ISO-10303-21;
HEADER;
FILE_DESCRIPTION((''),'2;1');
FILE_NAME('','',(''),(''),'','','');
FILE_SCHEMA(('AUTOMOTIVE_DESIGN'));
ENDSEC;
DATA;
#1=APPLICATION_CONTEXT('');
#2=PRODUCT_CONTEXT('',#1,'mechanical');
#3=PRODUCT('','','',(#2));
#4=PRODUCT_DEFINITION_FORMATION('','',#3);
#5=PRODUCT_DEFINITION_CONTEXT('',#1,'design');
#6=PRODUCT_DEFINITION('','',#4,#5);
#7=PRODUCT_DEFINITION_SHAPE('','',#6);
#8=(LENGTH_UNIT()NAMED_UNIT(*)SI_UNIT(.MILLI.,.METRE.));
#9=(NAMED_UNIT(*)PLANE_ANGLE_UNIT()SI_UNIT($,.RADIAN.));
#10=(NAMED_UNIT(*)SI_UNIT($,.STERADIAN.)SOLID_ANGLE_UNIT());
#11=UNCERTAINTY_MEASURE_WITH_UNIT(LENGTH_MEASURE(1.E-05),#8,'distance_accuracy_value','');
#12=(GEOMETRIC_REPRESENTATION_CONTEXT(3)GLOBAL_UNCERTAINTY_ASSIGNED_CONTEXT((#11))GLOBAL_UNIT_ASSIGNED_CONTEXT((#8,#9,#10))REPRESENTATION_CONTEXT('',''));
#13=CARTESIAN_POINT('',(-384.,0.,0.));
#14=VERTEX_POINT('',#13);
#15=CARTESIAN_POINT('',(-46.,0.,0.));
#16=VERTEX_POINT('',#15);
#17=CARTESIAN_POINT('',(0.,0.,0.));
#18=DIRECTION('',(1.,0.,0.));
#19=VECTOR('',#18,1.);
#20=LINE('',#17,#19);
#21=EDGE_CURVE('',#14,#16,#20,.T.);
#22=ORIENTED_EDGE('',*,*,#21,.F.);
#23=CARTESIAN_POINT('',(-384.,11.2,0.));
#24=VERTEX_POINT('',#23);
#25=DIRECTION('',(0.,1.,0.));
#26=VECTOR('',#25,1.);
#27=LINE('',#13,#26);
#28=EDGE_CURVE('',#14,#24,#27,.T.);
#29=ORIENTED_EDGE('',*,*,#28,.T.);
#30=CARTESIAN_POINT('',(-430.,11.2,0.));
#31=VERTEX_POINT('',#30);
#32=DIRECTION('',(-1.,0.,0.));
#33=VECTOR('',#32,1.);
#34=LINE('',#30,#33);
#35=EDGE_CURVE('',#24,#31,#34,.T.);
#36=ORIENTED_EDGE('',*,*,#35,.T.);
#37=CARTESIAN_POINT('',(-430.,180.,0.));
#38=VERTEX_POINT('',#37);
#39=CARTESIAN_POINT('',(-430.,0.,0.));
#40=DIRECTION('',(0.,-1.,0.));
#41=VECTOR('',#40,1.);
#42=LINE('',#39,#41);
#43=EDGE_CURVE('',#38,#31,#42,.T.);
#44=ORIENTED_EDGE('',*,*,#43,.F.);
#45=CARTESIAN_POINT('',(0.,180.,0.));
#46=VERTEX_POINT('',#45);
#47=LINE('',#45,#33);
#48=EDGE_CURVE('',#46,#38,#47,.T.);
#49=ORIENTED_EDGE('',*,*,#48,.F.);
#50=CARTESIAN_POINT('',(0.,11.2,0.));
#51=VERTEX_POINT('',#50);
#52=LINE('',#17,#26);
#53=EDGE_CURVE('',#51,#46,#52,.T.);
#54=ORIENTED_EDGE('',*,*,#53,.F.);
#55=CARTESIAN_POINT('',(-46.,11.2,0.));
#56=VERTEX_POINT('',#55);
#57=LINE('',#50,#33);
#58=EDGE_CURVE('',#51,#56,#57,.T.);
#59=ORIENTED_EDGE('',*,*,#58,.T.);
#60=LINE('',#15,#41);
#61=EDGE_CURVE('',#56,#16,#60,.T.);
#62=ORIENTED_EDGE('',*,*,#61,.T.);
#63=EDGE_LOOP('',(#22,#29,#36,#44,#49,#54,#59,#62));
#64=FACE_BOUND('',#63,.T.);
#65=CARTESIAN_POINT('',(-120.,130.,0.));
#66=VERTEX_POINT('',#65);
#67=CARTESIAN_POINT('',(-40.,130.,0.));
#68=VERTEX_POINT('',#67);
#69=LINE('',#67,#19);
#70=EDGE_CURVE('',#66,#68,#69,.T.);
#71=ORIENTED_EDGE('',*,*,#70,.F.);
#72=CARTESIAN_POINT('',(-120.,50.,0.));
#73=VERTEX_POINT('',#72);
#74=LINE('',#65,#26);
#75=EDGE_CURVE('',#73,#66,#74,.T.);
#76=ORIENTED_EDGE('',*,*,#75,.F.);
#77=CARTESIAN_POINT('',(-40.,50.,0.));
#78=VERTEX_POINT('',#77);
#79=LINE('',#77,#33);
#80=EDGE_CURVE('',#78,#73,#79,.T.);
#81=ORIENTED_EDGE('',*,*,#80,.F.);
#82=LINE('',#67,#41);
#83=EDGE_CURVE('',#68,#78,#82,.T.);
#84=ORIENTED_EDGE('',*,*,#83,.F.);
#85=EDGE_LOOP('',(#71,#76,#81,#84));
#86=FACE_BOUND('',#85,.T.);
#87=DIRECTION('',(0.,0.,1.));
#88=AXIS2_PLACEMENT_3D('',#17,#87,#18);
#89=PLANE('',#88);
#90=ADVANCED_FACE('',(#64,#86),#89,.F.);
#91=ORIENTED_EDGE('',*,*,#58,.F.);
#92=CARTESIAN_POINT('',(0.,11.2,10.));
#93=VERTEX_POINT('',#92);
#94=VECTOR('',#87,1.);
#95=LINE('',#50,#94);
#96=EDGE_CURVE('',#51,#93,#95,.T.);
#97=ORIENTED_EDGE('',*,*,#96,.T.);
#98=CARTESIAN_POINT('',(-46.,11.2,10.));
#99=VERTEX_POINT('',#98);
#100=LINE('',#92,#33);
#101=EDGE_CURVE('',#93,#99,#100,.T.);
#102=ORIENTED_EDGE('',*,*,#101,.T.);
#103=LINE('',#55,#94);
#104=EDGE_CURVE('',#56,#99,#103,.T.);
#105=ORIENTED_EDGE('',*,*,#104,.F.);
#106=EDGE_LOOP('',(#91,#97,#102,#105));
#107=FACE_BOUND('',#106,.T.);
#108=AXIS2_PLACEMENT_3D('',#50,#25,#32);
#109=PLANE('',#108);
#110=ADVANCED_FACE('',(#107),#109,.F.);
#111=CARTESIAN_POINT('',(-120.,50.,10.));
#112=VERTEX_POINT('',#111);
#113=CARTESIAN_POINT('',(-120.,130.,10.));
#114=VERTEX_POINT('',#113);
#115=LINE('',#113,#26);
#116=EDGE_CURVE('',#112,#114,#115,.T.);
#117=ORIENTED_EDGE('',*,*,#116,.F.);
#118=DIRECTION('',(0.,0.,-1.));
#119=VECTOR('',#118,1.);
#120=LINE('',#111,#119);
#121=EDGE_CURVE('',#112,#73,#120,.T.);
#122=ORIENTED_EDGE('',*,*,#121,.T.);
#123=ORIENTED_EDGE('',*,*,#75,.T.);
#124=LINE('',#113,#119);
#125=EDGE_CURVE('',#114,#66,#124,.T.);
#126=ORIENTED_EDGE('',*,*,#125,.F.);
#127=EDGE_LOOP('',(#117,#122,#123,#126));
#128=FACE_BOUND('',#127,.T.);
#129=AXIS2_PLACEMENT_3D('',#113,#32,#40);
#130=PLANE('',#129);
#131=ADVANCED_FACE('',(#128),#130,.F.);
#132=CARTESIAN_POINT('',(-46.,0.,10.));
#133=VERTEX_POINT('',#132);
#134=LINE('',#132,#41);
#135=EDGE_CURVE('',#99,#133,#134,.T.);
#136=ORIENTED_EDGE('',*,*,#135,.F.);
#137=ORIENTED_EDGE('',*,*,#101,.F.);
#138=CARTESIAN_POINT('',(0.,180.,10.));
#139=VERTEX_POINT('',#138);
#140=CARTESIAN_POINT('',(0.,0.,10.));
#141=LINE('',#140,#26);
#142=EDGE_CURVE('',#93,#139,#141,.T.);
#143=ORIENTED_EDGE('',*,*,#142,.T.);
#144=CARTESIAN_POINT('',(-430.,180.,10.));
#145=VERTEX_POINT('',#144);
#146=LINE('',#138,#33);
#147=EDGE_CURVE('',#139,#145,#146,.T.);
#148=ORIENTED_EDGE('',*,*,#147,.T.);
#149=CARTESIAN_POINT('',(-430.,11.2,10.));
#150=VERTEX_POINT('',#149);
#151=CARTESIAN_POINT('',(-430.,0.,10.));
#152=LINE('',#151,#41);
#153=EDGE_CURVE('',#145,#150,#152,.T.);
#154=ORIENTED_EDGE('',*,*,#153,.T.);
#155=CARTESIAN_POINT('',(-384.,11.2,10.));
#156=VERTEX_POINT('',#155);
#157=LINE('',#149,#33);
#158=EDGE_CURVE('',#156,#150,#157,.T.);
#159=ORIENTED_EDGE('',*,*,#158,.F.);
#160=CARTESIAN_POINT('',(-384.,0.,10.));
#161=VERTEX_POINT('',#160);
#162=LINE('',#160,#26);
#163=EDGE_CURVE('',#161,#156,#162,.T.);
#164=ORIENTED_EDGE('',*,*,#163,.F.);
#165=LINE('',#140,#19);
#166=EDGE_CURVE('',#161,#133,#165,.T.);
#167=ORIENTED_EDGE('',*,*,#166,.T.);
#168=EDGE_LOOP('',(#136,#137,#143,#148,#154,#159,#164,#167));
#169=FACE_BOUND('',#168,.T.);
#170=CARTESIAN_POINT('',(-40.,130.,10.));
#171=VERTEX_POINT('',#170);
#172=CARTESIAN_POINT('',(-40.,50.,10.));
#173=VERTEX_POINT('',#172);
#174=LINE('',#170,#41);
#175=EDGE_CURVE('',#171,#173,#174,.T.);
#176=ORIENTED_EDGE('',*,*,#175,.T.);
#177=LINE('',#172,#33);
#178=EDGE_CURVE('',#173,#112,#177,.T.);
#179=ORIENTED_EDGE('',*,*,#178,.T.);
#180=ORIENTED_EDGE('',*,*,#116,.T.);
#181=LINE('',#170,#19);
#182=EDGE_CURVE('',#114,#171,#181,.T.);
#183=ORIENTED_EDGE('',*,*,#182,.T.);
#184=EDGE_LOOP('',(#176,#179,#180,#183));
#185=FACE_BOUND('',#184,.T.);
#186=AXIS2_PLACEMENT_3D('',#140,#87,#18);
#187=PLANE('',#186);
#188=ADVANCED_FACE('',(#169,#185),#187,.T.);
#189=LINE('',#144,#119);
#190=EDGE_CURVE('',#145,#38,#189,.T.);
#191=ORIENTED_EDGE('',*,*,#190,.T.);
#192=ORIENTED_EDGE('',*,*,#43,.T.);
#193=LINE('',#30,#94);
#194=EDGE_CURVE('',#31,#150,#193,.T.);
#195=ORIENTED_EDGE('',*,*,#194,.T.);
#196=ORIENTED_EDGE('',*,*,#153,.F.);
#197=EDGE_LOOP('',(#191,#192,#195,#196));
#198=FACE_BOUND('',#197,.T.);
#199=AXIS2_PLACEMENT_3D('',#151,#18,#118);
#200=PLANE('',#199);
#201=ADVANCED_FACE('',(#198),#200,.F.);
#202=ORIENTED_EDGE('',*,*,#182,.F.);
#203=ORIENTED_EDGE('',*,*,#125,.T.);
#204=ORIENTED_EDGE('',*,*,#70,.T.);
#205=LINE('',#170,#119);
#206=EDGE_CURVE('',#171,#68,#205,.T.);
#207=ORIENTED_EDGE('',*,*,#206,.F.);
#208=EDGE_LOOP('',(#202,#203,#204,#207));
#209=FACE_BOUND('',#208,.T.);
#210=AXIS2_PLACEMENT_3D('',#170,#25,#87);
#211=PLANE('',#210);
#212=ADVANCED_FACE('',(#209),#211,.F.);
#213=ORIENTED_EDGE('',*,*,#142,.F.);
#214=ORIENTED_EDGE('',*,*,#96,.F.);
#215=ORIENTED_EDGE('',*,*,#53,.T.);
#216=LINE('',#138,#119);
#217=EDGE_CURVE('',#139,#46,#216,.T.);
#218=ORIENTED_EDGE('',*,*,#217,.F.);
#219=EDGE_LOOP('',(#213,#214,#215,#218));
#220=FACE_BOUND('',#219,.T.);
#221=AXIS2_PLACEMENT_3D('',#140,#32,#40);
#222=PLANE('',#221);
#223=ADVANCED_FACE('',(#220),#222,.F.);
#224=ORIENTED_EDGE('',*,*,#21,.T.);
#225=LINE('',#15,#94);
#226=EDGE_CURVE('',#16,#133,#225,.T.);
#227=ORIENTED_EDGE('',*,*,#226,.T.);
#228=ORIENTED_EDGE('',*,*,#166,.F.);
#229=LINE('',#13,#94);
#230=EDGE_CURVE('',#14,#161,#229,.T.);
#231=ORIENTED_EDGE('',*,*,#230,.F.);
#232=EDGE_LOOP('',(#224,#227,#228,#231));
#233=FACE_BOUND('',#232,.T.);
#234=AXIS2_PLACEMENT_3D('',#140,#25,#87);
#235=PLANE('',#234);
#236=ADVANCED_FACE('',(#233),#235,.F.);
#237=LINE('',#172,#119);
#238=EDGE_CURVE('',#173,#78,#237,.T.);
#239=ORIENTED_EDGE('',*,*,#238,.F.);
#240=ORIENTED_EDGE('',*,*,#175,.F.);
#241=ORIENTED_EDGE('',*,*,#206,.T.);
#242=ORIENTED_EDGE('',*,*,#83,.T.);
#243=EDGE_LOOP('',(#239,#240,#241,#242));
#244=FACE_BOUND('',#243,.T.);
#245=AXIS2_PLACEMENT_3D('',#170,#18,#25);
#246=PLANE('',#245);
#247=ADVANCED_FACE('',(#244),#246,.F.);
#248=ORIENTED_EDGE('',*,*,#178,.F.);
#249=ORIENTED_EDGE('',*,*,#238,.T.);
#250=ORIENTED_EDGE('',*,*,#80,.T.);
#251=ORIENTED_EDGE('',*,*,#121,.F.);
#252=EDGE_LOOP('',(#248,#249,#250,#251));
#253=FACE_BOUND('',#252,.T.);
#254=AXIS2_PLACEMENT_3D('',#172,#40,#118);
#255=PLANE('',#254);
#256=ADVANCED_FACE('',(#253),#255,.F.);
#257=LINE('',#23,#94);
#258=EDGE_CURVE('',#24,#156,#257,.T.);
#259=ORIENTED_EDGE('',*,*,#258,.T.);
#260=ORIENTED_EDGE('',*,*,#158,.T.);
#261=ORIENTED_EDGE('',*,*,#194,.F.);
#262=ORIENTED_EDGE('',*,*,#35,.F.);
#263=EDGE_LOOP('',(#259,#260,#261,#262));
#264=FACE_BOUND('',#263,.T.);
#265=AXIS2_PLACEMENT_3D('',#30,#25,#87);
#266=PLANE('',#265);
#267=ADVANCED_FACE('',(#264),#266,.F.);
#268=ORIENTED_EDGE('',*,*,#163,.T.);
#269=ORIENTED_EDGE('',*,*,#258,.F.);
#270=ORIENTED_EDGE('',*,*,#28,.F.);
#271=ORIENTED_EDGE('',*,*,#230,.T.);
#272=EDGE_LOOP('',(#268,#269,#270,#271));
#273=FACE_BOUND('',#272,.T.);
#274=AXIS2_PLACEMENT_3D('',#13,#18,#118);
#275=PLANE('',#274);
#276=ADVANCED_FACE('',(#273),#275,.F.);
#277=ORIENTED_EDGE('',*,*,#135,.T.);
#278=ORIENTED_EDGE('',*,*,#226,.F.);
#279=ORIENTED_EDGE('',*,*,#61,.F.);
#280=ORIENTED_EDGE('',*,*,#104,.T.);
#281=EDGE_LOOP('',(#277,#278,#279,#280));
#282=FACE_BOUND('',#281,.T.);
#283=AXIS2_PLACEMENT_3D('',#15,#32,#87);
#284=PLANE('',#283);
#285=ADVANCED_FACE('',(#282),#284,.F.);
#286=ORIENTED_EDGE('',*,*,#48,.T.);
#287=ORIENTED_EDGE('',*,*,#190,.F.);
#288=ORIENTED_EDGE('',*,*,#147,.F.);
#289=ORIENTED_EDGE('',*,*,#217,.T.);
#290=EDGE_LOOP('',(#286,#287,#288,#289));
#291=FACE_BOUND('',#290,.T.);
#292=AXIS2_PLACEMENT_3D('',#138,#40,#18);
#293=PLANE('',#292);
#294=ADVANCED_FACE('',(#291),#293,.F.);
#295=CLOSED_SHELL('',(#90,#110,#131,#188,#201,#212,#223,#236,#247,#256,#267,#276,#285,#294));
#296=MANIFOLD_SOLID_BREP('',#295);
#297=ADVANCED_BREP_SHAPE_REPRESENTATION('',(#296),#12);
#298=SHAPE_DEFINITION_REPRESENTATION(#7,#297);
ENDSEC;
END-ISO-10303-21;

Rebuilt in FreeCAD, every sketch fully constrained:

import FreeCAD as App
import Part
import Sketcher

V = App.Vector
Q = App.Units.Quantity


def add_polygon(sketch, points):
    """Adds a closed chain of lines whose ends are joined by coincident constraints."""
    first, n = sketch.GeometryCount, len(points)
    for a, b in zip(points, points[1:] + points[:1]):
        sketch.addGeometry(Part.LineSegment(App.Vector(*a, 0), App.Vector(*b, 0)), False)
    for i in range(n):
        sketch.addConstraint(Sketcher.Constraint("Coincident", first + i, 2, first + (i + 1) % n, 1))

doc = App.newDocument("Part")
body = doc.addObject("PartDesign::Body", "Body")

# Sketch on XY plane
sketch1 = body.newObject("Sketcher::SketchObject", "Sketch")
sketch1.AttachmentSupport = (doc.getObject("XY_Plane"), [""])
sketch1.MapMode = "FlatFace"
add_polygon(sketch1, [(-430, 180), (-430, 0), (0, 0), (0, 180)])  # lines 0-3
sketch1.addConstraint(Sketcher.Constraint("Vertical", 0))
sketch1.addConstraint(Sketcher.Constraint("Horizontal", 1))
sketch1.addConstraint(Sketcher.Constraint("Vertical", 2))
sketch1.addConstraint(Sketcher.Constraint("Horizontal", 3))
sketch1.addConstraint(Sketcher.Constraint("Coincident", 1, 2, -1, 1))
sketch1.addConstraint(Sketcher.Constraint("DistanceX", 1, 1, 1, 2, Q("430 mm")))
sketch1.addConstraint(Sketcher.Constraint("DistanceY", 0, 2, 0, 1, Q("180 mm")))
pad1 = body.newObject("PartDesign::Pad", "Pad")
pad1.Profile = sketch1
pad1.Length = 10

# Sketch on XY plane
sketch2 = body.newObject("Sketcher::SketchObject", "Sketch001")
sketch2.AttachmentSupport = (doc.getObject("XY_Plane"), [""])
sketch2.MapMode = "FlatFace"
add_polygon(sketch2, [(-40, 130), (-40, 50), (-120, 50), (-120, 130)])  # lines 0-3
sketch2.addConstraint(Sketcher.Constraint("Vertical", 0))
sketch2.addConstraint(Sketcher.Constraint("Horizontal", 1))
sketch2.addConstraint(Sketcher.Constraint("Vertical", 2))
sketch2.addConstraint(Sketcher.Constraint("Horizontal", 3))
sketch2.addConstraint(Sketcher.Constraint("Equal", 3, 0))
sketch2.addConstraint(Sketcher.Constraint("DistanceX", 1, 2, 1, 1, Q("80 mm")))
sketch2.addConstraint(Sketcher.Constraint("DistanceX", 0, 2, -1, 1, Q("40 mm")))
sketch2.addConstraint(Sketcher.Constraint("DistanceY", -1, 1, 0, 2, Q("50 mm")))
pocket1 = body.newObject("PartDesign::Pocket", "Pocket")
pocket1.Profile = sketch2
pocket1.Length = 10
pocket1.Reversed = True

# Sketch on XY plane
sketch3 = body.newObject("Sketcher::SketchObject", "Sketch002")
sketch3.AttachmentSupport = (doc.getObject("XY_Plane"), [""])
sketch3.MapMode = "FlatFace"
sketch3.AttachmentOffset = App.Placement(V(0, 0, 10), App.Rotation())
add_polygon(sketch3, [(-46, 11), (-46, 0), (0, 0), (0, 11)])  # lines 0-3
add_polygon(sketch3, [(-430, 11), (-430, 0), (-384, 0), (-384, 11)])  # lines 4-7
sketch3.addConstraint(Sketcher.Constraint("Vertical", 0))
sketch3.addConstraint(Sketcher.Constraint("Horizontal", 1))
sketch3.addConstraint(Sketcher.Constraint("Vertical", 2))
sketch3.addConstraint(Sketcher.Constraint("Horizontal", 3))
sketch3.addConstraint(Sketcher.Constraint("Vertical", 4))
sketch3.addConstraint(Sketcher.Constraint("Horizontal", 5))
sketch3.addConstraint(Sketcher.Constraint("Vertical", 6))
sketch3.addConstraint(Sketcher.Constraint("Horizontal", 7))
sketch3.addConstraint(Sketcher.Constraint("Coincident", 1, 2, -1, 1))
sketch3.addConstraint(Sketcher.Constraint("PointOnObject", 4, 2, -1))
sketch3.addConstraint(Sketcher.Constraint("Horizontal", 3, 2, 6, 2))
sketch3.addConstraint(Sketcher.Constraint("Equal", 3, 5))
sketch3.addConstraint(Sketcher.Constraint("DistanceX", 1, 1, 1, 2, Q("46 mm")))
sketch3.addConstraint(Sketcher.Constraint("DistanceY", 0, 2, 0, 1, Q("11.2 mm")))
sketch3.addConstraint(Sketcher.Constraint("DistanceX", 4, 2, -1, 1, Q("430 mm")))
pocket2 = body.newObject("PartDesign::Pocket", "Pocket001")
pocket2.Profile = sketch3
pocket2.Length = 10

doc.recompute()
